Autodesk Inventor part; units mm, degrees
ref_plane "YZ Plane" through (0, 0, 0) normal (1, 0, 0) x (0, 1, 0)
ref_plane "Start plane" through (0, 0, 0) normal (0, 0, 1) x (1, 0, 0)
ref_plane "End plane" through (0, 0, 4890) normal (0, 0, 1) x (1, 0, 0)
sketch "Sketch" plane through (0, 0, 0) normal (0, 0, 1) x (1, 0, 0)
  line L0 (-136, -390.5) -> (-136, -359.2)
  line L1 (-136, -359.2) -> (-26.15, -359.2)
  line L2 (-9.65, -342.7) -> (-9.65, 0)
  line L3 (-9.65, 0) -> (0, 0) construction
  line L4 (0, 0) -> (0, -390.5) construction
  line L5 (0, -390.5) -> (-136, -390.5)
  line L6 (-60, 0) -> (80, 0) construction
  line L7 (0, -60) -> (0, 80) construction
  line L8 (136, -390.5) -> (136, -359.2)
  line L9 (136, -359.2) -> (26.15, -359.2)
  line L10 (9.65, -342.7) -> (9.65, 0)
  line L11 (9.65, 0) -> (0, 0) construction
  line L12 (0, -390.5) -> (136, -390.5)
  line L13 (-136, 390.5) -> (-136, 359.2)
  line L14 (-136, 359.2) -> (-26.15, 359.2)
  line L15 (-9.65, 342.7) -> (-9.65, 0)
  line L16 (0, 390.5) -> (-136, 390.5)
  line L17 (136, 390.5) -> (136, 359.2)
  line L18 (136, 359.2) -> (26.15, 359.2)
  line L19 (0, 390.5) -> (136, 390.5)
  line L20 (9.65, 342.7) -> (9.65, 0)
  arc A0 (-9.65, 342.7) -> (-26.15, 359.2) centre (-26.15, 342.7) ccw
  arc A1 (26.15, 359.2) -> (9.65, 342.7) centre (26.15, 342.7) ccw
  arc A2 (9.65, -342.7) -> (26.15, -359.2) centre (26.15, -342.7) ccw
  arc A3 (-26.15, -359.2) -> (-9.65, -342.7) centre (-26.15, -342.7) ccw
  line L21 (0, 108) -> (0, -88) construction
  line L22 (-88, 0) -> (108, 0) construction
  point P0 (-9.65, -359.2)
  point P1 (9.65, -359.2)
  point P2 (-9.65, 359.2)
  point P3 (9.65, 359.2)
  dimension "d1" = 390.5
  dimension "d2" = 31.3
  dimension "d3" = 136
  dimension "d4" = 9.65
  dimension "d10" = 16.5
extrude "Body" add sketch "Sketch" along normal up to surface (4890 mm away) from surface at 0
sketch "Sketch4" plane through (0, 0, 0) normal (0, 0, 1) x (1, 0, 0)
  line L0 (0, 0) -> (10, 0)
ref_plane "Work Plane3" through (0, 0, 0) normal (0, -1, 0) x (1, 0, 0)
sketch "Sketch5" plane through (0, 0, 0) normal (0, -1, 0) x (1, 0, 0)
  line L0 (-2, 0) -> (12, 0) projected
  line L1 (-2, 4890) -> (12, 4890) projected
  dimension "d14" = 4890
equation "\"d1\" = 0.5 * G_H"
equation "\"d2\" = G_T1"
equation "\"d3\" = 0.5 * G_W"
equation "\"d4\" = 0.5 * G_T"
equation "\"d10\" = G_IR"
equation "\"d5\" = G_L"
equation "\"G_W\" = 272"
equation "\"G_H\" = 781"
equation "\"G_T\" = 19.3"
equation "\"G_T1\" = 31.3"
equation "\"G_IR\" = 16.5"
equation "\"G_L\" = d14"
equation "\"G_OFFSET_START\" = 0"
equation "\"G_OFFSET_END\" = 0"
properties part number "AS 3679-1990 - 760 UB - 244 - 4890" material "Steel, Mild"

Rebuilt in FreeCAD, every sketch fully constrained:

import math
import FreeCAD as App
import Part
import Sketcher

V = App.Vector
Q = App.Units.Quantity

doc = App.newDocument("Part")
body = doc.addObject("PartDesign::Body", "Body")

# Sketch on XY plane
sketch1 = body.newObject("Sketcher::SketchObject", "Sketch")
sketch1.AttachmentSupport = (doc.getObject("XY_Plane"), [""])
sketch1.MapMode = "FlatFace"
sketch1.addGeometry([
    Part.LineSegment(V(-136, -359.2, 0), V(-136, -390.5, 0)),  # 0
    Part.LineSegment(V(-136, -390.5, 0), V(136, -390.5, 0)),  # 1
    Part.LineSegment(V(136, -390.5, 0), V(136, -359.2, 0)),  # 2
    Part.LineSegment(V(136, -359.2, 0), V(26.15, -359.2, 0)),  # 3
    Part.ArcOfCircle(Part.Circle(V(26.15, -342.7, 0), V(0, 0, 1), 16.5), math.radians(180), math.radians(270)),  # 4
    Part.LineSegment(V(9.65, -342.7, 0), V(9.65, 342.7, 0)),  # 5
    Part.ArcOfCircle(Part.Circle(V(26.15, 342.7, 0), V(0, 0, 1), 16.5), math.radians(90), math.radians(180)),  # 6
    Part.LineSegment(V(26.15, 359.2, 0), V(136, 359.2, 0)),  # 7
    Part.LineSegment(V(136, 359.2, 0), V(136, 390.5, 0)),  # 8
    Part.LineSegment(V(136, 390.5, 0), V(-136, 390.5, 0)),  # 9
    Part.LineSegment(V(-136, 390.5, 0), V(-136, 359.2, 0)),  # 10
    Part.LineSegment(V(-136, 359.2, 0), V(-26.15, 359.2, 0)),  # 11
    Part.ArcOfCircle(Part.Circle(V(-26.15, 342.7, 0), V(0, 0, 1), 16.5), math.radians(0), math.radians(90)),  # 12
    Part.LineSegment(V(-9.65, 342.7, 0), V(-9.65, -342.7, 0)),  # 13
    Part.ArcOfCircle(Part.Circle(V(-26.15, -342.7, 0), V(0, 0, 1), 16.5), math.radians(-90), math.radians(0)),  # 14
    Part.LineSegment(V(-26.15, -359.2, 0), V(-136, -359.2, 0)),  # 15
], False)
sketch1.addConstraint([
    Sketcher.Constraint("Coincident", 0, 2, 1, 1),
    Sketcher.Constraint("Coincident", 1, 2, 2, 1),
    Sketcher.Constraint("Coincident", 2, 2, 3, 1),
    Sketcher.Constraint("Tangent", 3, 2, 4, 2),
    Sketcher.Constraint("Tangent", 4, 1, 5, 1),
    Sketcher.Constraint("Tangent", 5, 2, 6, 2),
    Sketcher.Constraint("Tangent", 6, 1, 7, 1),
    Sketcher.Constraint("Coincident", 7, 2, 8, 1),
    Sketcher.Constraint("Coincident", 8, 2, 9, 1),
    Sketcher.Constraint("Coincident", 9, 2, 10, 1),
    Sketcher.Constraint("Coincident", 10, 2, 11, 1),
    Sketcher.Constraint("Tangent", 11, 2, 12, 2),
    Sketcher.Constraint("Tangent", 12, 1, 13, 1),
    Sketcher.Constraint("Tangent", 13, 2, 14, 2),
    Sketcher.Constraint("Tangent", 14, 1, 15, 1),
    Sketcher.Constraint("Coincident", 15, 2, 0, 1),
    Sketcher.Constraint("Vertical", 0),
    Sketcher.Constraint("Horizontal", 1),
    Sketcher.Constraint("Vertical", 2),
    Sketcher.Constraint("Horizontal", 3),
    Sketcher.Constraint("Vertical", 5),
    Sketcher.Constraint("Horizontal", 7),
    Sketcher.Constraint("Vertical", 8),
    Sketcher.Constraint("Horizontal", 9),
    Sketcher.Constraint("Vertical", 10),
    Sketcher.Constraint("Horizontal", 11),
    Sketcher.Constraint("Vertical", 13),
    Sketcher.Constraint("Horizontal", 15),
    Sketcher.Constraint("Equal", 4, 6),
    Sketcher.Constraint("Equal", 6, 12),
    Sketcher.Constraint("Equal", 12, 14),
    Sketcher.Constraint("Symmetric", 4, 3, 12, 3, -1, 1),
    Sketcher.Constraint("Symmetric", 0, 2, 8, 2, -1, 1),
    Sketcher.Constraint("Symmetric", 7, 2, 10, 2, -2),
    Sketcher.Constraint("Symmetric", 2, 2, 15, 2, -2),
    Sketcher.Constraint("Radius", 4, Q("16.5 mm")),
    Sketcher.Constraint("DistanceY", 0, 2, 0, 1, Q("31.3 mm")),
    Sketcher.Constraint("DistanceX", 0, 2, -1, 1, Q("136 mm")),
    Sketcher.Constraint("DistanceY", 0, 2, -1, 1, Q("390.5 mm")),
    Sketcher.Constraint("DistanceX", -1, 1, 4, 1, Q("9.65 mm")),
])
pad1 = body.newObject("PartDesign::Pad", "Pad")
pad1.Profile = sketch1
pad1.Length = 4890

doc.recompute()
